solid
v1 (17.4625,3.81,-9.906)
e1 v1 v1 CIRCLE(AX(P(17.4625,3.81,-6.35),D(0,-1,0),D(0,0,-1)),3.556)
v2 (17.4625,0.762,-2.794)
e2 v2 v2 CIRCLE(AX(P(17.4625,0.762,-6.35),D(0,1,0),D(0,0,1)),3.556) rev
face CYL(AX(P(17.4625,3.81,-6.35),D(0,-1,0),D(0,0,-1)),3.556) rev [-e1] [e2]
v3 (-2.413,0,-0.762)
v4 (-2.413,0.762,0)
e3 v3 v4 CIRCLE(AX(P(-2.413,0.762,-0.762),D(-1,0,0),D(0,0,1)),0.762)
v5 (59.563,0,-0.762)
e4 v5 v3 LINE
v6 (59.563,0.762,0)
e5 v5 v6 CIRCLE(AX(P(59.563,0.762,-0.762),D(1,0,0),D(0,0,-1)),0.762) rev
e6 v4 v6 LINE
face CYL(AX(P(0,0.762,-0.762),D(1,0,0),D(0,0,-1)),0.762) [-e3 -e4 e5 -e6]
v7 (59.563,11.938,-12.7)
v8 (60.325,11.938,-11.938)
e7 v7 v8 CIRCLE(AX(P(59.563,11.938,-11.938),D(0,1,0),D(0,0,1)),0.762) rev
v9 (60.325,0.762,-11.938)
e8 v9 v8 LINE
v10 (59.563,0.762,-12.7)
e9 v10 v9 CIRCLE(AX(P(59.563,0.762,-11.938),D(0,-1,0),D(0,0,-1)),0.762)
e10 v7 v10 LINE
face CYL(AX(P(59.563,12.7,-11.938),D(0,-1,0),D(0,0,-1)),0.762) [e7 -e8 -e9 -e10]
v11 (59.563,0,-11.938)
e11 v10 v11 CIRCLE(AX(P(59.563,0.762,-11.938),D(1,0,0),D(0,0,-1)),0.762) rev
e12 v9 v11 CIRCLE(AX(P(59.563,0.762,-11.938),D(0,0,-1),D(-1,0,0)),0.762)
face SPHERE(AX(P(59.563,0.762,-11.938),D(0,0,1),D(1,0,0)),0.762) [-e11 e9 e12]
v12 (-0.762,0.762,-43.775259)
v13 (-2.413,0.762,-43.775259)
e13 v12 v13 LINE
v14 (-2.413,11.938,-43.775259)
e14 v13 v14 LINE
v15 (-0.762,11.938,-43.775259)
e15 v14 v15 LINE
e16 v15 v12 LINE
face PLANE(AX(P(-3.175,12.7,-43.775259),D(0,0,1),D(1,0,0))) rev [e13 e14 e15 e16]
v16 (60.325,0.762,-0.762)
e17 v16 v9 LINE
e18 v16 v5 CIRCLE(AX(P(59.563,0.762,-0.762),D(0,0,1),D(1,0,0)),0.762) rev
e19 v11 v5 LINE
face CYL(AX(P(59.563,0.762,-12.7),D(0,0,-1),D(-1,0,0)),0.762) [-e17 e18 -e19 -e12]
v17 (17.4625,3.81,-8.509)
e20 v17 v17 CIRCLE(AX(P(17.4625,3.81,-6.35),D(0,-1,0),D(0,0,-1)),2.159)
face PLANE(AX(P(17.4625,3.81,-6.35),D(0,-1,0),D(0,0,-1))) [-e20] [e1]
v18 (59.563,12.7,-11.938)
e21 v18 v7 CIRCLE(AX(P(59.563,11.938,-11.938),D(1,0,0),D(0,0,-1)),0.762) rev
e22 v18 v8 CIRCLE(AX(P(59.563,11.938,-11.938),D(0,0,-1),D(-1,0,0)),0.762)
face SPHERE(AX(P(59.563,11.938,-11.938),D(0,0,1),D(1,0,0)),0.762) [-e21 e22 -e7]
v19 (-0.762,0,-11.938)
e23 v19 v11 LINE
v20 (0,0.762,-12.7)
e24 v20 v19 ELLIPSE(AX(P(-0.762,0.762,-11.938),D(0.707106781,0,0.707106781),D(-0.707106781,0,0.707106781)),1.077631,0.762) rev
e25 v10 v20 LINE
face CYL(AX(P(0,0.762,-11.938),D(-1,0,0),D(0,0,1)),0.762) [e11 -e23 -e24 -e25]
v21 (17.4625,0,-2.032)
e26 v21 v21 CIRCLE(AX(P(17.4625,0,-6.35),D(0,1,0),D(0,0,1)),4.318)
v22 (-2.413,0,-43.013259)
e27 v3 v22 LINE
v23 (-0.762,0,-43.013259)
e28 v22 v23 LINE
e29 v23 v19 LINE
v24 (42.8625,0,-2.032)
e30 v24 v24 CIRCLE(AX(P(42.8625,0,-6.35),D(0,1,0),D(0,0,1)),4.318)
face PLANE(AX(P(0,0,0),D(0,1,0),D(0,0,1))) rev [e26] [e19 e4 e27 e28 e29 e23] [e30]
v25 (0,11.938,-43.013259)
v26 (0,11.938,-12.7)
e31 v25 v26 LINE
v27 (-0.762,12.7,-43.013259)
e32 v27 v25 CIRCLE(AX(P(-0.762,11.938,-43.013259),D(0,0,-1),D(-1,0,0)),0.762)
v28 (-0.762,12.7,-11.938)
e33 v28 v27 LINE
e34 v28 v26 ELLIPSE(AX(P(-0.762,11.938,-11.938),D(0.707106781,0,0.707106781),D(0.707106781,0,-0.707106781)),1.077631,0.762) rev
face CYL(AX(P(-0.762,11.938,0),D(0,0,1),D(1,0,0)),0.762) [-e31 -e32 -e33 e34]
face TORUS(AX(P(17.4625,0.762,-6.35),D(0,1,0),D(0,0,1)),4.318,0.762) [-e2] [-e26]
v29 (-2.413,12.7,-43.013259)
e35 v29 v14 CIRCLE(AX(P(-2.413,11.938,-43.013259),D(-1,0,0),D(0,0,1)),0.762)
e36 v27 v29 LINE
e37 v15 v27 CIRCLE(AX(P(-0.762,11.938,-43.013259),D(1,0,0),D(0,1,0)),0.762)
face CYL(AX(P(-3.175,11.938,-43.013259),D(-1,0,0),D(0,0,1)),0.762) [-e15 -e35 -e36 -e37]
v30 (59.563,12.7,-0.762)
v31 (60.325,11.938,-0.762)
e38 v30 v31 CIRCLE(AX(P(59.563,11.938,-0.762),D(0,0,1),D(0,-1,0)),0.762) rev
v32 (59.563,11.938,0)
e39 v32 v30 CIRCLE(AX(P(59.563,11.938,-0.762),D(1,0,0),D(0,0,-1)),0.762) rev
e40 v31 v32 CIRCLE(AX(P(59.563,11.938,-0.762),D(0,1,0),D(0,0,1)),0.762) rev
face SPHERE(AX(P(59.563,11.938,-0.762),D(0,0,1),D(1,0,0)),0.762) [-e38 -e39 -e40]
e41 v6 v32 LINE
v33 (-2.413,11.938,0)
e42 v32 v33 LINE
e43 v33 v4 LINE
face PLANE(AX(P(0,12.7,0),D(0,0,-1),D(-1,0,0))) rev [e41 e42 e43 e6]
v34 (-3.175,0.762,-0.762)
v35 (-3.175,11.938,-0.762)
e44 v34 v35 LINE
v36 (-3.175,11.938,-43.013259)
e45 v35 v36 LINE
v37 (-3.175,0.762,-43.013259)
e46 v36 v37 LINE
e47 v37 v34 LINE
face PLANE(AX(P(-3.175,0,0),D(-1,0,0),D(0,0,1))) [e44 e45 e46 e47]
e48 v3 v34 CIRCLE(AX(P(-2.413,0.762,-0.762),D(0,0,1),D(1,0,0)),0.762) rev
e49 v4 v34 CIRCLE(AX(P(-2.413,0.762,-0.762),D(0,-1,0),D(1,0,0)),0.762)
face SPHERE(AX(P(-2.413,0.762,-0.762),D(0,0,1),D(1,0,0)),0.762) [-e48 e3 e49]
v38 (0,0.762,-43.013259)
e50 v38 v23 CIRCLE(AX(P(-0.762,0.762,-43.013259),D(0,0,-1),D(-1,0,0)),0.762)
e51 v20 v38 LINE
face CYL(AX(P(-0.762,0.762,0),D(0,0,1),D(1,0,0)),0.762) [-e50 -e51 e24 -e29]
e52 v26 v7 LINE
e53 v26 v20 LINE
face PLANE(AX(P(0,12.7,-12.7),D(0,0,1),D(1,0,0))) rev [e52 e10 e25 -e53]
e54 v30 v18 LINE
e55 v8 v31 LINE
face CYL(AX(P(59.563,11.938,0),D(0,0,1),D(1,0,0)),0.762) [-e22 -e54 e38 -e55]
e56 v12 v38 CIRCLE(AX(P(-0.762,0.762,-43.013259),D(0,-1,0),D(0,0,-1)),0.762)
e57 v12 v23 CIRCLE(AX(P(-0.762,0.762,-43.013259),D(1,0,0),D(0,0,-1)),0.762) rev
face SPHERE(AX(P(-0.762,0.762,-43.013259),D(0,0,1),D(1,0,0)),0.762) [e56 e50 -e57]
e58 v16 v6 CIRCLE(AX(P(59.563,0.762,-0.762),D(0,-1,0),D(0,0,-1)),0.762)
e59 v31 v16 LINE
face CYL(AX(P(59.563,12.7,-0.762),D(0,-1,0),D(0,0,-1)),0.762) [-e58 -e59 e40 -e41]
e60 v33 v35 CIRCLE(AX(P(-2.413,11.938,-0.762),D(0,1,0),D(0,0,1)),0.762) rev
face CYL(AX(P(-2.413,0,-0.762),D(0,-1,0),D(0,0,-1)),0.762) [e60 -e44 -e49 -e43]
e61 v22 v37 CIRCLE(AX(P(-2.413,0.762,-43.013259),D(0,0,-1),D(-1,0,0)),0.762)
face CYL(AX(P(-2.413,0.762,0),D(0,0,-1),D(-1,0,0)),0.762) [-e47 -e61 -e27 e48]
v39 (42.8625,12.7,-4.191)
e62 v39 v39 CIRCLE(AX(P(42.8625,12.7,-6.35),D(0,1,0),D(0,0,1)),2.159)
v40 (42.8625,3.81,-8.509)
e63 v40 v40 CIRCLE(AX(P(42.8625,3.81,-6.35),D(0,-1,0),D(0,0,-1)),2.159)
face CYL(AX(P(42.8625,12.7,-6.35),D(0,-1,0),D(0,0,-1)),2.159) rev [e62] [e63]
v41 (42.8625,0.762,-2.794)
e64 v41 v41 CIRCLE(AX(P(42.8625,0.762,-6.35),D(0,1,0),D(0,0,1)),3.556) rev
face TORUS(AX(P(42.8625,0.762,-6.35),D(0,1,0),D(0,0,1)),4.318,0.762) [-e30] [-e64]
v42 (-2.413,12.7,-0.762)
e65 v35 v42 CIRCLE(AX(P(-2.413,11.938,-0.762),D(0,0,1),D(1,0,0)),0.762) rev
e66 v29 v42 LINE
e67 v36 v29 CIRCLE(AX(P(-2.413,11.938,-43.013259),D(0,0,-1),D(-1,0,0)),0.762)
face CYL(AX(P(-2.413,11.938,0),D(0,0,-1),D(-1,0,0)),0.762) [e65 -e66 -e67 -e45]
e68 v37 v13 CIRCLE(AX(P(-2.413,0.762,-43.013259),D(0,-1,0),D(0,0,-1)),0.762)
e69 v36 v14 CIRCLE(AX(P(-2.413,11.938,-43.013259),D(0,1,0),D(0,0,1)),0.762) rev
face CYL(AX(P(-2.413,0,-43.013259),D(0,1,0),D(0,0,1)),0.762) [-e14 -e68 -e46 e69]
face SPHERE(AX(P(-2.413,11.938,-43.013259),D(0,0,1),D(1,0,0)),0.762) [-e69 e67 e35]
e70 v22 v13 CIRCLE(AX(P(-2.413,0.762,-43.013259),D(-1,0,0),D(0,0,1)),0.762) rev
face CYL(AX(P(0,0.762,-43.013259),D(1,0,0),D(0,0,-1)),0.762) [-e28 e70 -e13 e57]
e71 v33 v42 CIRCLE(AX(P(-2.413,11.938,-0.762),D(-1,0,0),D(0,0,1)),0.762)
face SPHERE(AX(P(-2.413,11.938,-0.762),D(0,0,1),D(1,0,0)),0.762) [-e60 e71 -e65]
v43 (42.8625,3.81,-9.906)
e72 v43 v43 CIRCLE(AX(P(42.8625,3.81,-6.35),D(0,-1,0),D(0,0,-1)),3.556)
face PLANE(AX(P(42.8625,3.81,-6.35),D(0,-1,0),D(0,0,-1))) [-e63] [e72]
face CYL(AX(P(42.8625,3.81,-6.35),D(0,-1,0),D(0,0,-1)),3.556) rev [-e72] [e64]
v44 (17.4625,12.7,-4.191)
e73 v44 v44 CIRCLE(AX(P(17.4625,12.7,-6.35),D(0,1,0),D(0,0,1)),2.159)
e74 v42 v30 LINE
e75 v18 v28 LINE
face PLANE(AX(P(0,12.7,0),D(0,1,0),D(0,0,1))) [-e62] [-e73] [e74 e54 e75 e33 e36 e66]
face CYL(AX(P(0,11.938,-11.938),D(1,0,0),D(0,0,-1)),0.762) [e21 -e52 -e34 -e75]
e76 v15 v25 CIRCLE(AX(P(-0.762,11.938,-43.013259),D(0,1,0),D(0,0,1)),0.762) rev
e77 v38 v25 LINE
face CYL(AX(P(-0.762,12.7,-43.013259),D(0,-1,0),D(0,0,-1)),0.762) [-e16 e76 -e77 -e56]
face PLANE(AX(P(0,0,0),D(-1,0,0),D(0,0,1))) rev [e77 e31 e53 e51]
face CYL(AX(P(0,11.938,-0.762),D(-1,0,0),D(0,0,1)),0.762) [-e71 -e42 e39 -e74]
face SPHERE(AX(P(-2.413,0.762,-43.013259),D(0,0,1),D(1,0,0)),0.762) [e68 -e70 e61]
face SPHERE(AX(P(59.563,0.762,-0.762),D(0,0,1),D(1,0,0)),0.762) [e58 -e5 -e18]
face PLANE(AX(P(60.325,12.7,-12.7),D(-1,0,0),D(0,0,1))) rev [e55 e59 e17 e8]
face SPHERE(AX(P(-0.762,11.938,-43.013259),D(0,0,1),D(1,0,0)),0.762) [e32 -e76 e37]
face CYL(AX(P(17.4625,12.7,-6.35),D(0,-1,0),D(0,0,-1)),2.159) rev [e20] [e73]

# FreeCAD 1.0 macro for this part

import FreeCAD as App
import Part
import Sketcher
Q = App.Units.Quantity


def edges_at(feature, points):
    """Names of the edges that pass closest to the given points."""
    edges = feature.Shape.Edges
    near = lambda p: min(range(len(edges)), key=lambda i: edges[i].distToShape(Part.Vertex(*p))[0])
    return sorted({f"Edge{near(p) + 1}" for p in points})

doc = App.newDocument("Part")
body = doc.addObject("PartDesign::Body", "Body")

# Sketch on XZ plane
sketch1 = body.newObject("Sketcher::SketchObject", "Sketch")
sketch1.AttachmentSupport = (doc.getObject("XZ_Plane"), [""])
sketch1.MapMode = "FlatFace"
sketch1.addGeometry(Part.LineSegment(App.Vector(0, -12.7, 0), App.Vector(0, 0, 0)), False)
sketch1.addGeometry(Part.LineSegment(App.Vector(0, 0, 0), App.Vector(60.3, 0, 0)), False)
sketch1.addGeometry(Part.LineSegment(App.Vector(60.3, 0, 0), App.Vector(60.3, -12.7, 0)), False)
sketch1.addGeometry(Part.LineSegment(App.Vector(60.3, -12.7, 0), App.Vector(0, -12.7, 0)), False)
sketch1.addGeometry(Part.Circle(App.Vector(17.5, -6.3, 0), App.Vector(0, 0, 1), 2.2), False)
sketch1.addGeometry(Part.Circle(App.Vector(42.9, -6.3, 0), App.Vector(0, 0, 1), 2.2), False)
sketch1.addConstraint(Sketcher.Constraint("Coincident", 0, 2, 1, 1))
sketch1.addConstraint(Sketcher.Constraint("Coincident", 1, 2, 2, 1))
sketch1.addConstraint(Sketcher.Constraint("Coincident", 2, 2, 3, 1))
sketch1.addConstraint(Sketcher.Constraint("Coincident", 3, 2, 0, 1))
sketch1.addConstraint(Sketcher.Constraint("Vertical", 0))
sketch1.addConstraint(Sketcher.Constraint("Horizontal", 1))
sketch1.addConstraint(Sketcher.Constraint("Vertical", 2))
sketch1.addConstraint(Sketcher.Constraint("Horizontal", 3))
sketch1.addConstraint(Sketcher.Constraint("Coincident", 0, 2, -1, 1))
sketch1.addConstraint(Sketcher.Constraint("Equal", 4, 5))
sketch1.addConstraint(Sketcher.Constraint("Horizontal", 4, 3, 5, 3))
sketch1.addConstraint(Sketcher.Constraint("Diameter", 4, Q("0.17 in")))
sketch1.addConstraint(Sketcher.Constraint("DistanceY", 0, 1, 0, 2, Q("0.5 in")))
sketch1.addConstraint(Sketcher.Constraint("DistanceX", 4, 3, 5, 3, Q("1 in")))
sketch1.addConstraint(Sketcher.Constraint("DistanceX", 1, 1, 1, 2, Q("2.375 in")))
sketch1.addConstraint(Sketcher.Constraint("DistanceY", 4, 3, -1, 1, Q("0.25 in")))
sketch1.addConstraint(Sketcher.Constraint("DistanceX", -1, 1, 4, 3, Q("0.6875 in")))
pad1 = body.newObject("PartDesign::Pad", "Pad")
pad1.Profile = sketch1
pad1.Length = Q("0.5 in")
pad1.Reversed = True

# Sketch on YZ plane
sketch2 = body.newObject("Sketcher::SketchObject", "Sketch001")
sketch2.AttachmentSupport = (doc.getObject("YZ_Plane"), [""])
sketch2.MapMode = "FlatFace"
sketch2.addGeometry(Part.LineSegment(App.Vector(13, -44, 0), App.Vector(0, -44, 0)), False)
sketch2.addGeometry(Part.LineSegment(App.Vector(0, -44, 0), App.Vector(0, 0, 0)), False)
sketch2.addGeometry(Part.LineSegment(App.Vector(0, 0, 0), App.Vector(13, 0, 0)), False)
sketch2.addGeometry(Part.LineSegment(App.Vector(13, 0, 0), App.Vector(13, -44, 0)), False)
sketch2.addConstraint(Sketcher.Constraint("Coincident", 0, 2, 1, 1))
sketch2.addConstraint(Sketcher.Constraint("Coincident", 1, 2, 2, 1))
sketch2.addConstraint(Sketcher.Constraint("Coincident", 2, 2, 3, 1))
sketch2.addConstraint(Sketcher.Constraint("Coincident", 3, 2, 0, 1))
sketch2.addConstraint(Sketcher.Constraint("Horizontal", 0))
sketch2.addConstraint(Sketcher.Constraint("Vertical", 1))
sketch2.addConstraint(Sketcher.Constraint("Horizontal", 2))
sketch2.addConstraint(Sketcher.Constraint("Vertical", 3))
sketch2.addConstraint(Sketcher.Constraint("Coincident", 1, 2, -1, 1))
sketch2.addConstraint(Sketcher.Constraint("DistanceX", 0, 2, 0, 1, Q("0.5 in")))
sketch2.addConstraint(Sketcher.Constraint("DistanceY", 1, 1, 1, 2, 43.775259))
pad2 = body.newObject("PartDesign::Pad", "Pad001")
pad2.Profile = sketch2
pad2.Length = Q("0.125 in")
pad2.Reversed = True

# Sketch on XZ plane
sketch3 = body.newObject("Sketcher::SketchObject", "Sketch002")
sketch3.AttachmentSupport = (doc.getObject("XZ_Plane"), [""])
sketch3.MapMode = "FlatFace"
sketch3.addGeometry(Part.Circle(App.Vector(42.9, -6.3, 0), App.Vector(0, 0, 1), 3.6), False)
sketch3.addGeometry(Part.Circle(App.Vector(17.5, -6.3, 0), App.Vector(0, 0, 1), 3.6), False)
sketch3.addConstraint(Sketcher.Constraint("Equal", 0, 1))
sketch3.addConstraint(Sketcher.Constraint("Horizontal", 0, 3, 1, 3))
sketch3.addConstraint(Sketcher.Constraint("Diameter", 0, Q("0.28 in")))
sketch3.addConstraint(Sketcher.Constraint("DistanceX", 1, 3, 0, 3, Q("1 in")))
sketch3.addConstraint(Sketcher.Constraint("DistanceY", 0, 3, -1, 1, Q("0.25 in")))
sketch3.addConstraint(Sketcher.Constraint("DistanceX", -1, 1, 0, 3, Q("1.6875 in")))
pocket1 = body.newObject("PartDesign::Pocket", "Pocket")
pocket1.Profile = sketch3
pocket1.Length = Q("0.15 in")
doc.recompute()

fillet = body.newObject("PartDesign::Fillet", "Fillet")
fillet.Base = (pocket1, edges_at(pocket1, [
    (60.325, 12.7, -6.35),
    (30.163, 12.7, -12.7),
    (0, 6.35, -43.775),
    (-1.587, 12.7, -43.775),
    (0, 0, -28.238),
    (-1.587, 0, -43.775),
    (0, 12.7, -28.238),
    (-3.175, 6.35, -43.775),
    (-3.175, 0, -21.888),
    (-3.175, 6.35, 0),
    (-3.175, 12.7, -21.888),
    (39.306, 0, -6.35),
    (13.906, 0, -6.35),
    (30.163, 0, -12.7),
    (60.325, 0, -6.35),
    (30.163, 0, 0),
    (30.163, 12.7, 0),
    (60.325, 6.35, -12.7),
    (60.325, 6.35, 0),
]))
fillet.Radius = Q("0.03 in")

doc.recompute()
